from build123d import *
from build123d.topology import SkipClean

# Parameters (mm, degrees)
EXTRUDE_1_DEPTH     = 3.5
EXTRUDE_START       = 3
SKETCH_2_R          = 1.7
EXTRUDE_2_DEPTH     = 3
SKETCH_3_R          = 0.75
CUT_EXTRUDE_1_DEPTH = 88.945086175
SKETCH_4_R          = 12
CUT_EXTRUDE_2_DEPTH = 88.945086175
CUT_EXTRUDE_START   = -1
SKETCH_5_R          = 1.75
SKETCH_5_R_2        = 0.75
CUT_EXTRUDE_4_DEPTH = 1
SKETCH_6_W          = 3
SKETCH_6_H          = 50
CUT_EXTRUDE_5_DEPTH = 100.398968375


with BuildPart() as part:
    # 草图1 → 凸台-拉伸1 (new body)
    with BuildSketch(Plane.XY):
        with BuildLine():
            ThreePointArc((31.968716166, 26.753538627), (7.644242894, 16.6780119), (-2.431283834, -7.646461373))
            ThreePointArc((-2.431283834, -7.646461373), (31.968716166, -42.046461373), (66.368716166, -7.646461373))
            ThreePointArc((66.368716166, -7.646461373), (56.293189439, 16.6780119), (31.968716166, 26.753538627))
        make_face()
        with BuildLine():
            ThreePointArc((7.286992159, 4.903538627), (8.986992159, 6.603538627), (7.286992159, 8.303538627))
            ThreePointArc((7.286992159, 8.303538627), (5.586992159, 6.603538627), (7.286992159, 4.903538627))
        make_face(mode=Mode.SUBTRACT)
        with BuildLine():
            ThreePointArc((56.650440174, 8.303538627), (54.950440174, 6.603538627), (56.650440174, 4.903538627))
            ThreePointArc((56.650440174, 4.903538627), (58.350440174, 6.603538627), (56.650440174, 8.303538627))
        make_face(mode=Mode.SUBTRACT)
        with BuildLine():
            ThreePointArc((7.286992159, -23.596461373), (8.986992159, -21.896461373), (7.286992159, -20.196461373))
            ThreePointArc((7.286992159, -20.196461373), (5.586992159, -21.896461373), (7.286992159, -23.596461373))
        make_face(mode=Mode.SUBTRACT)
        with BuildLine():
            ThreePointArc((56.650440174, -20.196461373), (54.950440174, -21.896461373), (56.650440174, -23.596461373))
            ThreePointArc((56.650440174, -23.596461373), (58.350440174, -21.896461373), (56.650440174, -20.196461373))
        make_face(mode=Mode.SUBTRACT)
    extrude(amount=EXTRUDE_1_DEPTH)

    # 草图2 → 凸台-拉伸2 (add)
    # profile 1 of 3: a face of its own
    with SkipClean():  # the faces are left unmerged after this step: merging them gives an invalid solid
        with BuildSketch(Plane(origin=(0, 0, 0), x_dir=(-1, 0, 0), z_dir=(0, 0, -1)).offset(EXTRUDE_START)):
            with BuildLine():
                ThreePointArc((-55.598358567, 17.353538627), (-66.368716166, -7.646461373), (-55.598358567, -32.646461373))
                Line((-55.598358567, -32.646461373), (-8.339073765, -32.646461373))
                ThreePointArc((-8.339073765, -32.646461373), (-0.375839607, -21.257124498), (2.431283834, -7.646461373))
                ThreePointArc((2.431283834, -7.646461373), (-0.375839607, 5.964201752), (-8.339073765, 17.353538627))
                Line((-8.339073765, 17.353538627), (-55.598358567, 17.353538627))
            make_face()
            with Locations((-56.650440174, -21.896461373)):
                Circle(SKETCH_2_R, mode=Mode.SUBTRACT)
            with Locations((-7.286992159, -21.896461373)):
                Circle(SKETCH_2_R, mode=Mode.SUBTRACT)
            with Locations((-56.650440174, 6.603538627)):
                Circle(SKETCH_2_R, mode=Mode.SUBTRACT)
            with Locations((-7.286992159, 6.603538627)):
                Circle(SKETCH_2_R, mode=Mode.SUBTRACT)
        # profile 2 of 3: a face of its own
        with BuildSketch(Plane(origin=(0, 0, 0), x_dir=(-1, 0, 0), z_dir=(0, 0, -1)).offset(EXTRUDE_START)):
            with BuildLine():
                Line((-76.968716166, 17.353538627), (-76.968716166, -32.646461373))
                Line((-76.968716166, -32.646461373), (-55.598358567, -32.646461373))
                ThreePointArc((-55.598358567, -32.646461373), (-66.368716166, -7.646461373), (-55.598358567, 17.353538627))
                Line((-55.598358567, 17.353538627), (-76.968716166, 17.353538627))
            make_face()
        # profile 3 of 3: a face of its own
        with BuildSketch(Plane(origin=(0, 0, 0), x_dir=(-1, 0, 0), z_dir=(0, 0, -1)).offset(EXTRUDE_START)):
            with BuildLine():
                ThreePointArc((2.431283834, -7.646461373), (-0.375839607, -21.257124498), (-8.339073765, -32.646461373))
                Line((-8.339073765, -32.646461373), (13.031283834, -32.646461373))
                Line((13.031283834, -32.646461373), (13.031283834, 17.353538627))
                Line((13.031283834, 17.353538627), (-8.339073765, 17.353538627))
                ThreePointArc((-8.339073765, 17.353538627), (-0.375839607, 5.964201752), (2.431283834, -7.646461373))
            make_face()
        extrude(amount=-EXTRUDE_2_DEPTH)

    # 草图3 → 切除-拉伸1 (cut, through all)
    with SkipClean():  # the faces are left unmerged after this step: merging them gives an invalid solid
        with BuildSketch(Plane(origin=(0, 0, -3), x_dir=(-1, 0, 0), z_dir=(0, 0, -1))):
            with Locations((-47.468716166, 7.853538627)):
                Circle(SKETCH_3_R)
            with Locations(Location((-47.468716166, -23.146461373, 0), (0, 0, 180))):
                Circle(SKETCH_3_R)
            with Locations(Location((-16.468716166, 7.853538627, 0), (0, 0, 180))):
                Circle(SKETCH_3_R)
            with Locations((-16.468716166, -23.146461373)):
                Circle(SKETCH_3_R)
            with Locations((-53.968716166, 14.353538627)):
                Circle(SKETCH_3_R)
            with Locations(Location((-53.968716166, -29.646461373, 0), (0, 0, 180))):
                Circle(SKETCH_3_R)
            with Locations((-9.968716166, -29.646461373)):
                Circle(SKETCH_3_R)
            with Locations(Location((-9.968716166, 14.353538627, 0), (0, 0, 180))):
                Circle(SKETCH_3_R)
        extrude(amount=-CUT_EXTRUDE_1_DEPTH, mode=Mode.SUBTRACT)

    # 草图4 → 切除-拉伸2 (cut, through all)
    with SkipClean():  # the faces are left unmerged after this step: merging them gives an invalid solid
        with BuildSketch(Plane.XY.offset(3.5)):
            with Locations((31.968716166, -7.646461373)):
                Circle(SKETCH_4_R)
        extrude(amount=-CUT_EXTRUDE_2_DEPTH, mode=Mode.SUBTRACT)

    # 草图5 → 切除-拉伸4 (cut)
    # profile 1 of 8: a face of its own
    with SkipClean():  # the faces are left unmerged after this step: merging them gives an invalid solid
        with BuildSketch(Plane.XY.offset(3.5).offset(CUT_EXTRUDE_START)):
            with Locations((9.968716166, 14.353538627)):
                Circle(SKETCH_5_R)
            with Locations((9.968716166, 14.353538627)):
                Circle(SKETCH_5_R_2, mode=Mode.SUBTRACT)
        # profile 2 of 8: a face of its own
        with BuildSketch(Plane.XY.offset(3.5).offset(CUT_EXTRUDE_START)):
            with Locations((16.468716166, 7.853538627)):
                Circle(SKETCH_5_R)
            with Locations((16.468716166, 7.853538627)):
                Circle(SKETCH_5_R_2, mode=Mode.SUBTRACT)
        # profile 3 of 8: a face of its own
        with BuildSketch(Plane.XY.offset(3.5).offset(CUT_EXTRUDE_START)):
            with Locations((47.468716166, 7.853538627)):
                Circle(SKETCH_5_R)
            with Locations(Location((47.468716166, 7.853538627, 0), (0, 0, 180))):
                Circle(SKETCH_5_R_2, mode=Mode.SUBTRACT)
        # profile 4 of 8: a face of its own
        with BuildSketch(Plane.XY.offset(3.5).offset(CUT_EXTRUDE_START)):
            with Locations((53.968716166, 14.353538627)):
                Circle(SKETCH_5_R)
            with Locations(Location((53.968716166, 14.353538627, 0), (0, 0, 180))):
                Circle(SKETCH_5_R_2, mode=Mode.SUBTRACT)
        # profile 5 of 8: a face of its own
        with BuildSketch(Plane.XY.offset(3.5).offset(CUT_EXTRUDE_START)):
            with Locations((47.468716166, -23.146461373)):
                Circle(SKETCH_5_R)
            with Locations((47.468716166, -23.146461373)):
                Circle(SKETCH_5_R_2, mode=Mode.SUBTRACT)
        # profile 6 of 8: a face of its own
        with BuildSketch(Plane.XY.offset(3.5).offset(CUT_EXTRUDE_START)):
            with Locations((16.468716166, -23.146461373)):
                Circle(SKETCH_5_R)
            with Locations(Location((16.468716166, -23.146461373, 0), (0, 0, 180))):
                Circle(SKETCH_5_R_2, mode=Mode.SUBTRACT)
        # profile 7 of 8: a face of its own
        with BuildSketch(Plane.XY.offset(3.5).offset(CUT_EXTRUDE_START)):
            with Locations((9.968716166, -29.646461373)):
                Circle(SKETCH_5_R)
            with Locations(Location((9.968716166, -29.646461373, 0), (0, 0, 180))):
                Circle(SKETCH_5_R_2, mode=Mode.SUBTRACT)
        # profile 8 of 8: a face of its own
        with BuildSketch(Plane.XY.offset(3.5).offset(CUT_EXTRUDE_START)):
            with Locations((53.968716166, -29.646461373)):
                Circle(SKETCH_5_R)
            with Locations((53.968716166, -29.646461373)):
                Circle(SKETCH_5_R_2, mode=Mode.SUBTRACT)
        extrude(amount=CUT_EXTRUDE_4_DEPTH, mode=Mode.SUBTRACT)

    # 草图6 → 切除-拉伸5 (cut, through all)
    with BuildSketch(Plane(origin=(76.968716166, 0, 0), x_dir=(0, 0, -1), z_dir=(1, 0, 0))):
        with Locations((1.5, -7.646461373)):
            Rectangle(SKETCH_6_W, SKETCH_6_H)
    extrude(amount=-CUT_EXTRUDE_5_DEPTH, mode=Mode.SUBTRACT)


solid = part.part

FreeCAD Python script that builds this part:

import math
import FreeCAD as App
import Part
import Sketcher

V = App.Vector
Q = App.Units.Quantity


def add_polygon(sketch, points):
    """Adds a closed chain of lines whose ends are joined by coincident constraints."""
    first, n = sketch.GeometryCount, len(points)
    for a, b in zip(points, points[1:] + points[:1]):
        sketch.addGeometry(Part.LineSegment(App.Vector(*a, 0), App.Vector(*b, 0)), False)
    for i in range(n):
        sketch.addConstraint(Sketcher.Constraint("Coincident", first + i, 2, first + (i + 1) % n, 1))

doc = App.newDocument("Part")
body = doc.addObject("PartDesign::Body", "Body")

# Sketch on XY plane
sketch1 = body.newObject("Sketcher::SketchObject", "Sketch")
sketch1.AttachmentSupport = (doc.getObject("XY_Plane"), [""])
sketch1.MapMode = "FlatFace"
sketch1.addGeometry([
    Part.ArcOfCircle(Part.Circle(V(32, -7.6, 0), V(0, 0, 1), 34.4), math.radians(90), math.radians(180)),  # 0
    Part.ArcOfCircle(Part.Circle(V(32, -7.6, 0), V(0, 0, 1), 34.4), math.radians(180), math.radians(360)),  # 1
    Part.ArcOfCircle(Part.Circle(V(32, -7.6, 0), V(0, 0, 1), 34.4), math.radians(0), math.radians(90)),  # 2
    Part.Circle(V(7.3, -21.9, 0), V(0, 0, 1), 1.7),  # 3
    Part.Circle(V(56.7, -21.9, 0), V(0, 0, 1), 1.7),  # 4
    Part.Circle(V(7.3, 6.6, 0), V(0, 0, 1), 1.7),  # 5
    Part.Circle(V(56.7, 6.6, 0), V(0, 0, 1), 1.7),  # 6
], False)
sketch1.addConstraint([
    Sketcher.Constraint("Tangent", 0, 2, 1, 1),
    Sketcher.Constraint("Tangent", 1, 2, 2, 1),
    Sketcher.Constraint("Tangent", 2, 2, 0, 1),
    Sketcher.Constraint("Equal", 3, 4),
    Sketcher.Constraint("Equal", 4, 5),
    Sketcher.Constraint("Equal", 5, 6),
    Sketcher.Constraint("Horizontal", 3, 3, 4, 3),
    Sketcher.Constraint("Horizontal", 5, 3, 6, 3),
    Sketcher.Constraint("Horizontal", 2, 3, 0, 2),
    Sketcher.Constraint("Horizontal", 0, 2, 1, 2),
    Sketcher.Constraint("Vertical", 3, 3, 5, 3),
    Sketcher.Constraint("Vertical", 4, 3, 6, 3),
    Sketcher.Constraint("Vertical", 1, 3, 2, 2),
    Sketcher.Constraint("Diameter", 3, Q("3.4 mm")),
    Sketcher.Constraint("Radius", 0, Q("34.4 mm")),
    Sketcher.Constraint("DistanceY", 3, 3, 5, 3, Q("28.5 mm")),
    Sketcher.Constraint("DistanceY", 3, 3, 1, 3, Q("14.25 mm")),
    Sketcher.Constraint("DistanceY", 0, 3, -1, 1, Q("7.646461 mm")),
    Sketcher.Constraint("DistanceX", -1, 1, 4, 3, Q("56.65044 mm")),
    Sketcher.Constraint("DistanceX", 3, 3, 4, 3, Q("49.363448 mm")),
    Sketcher.Constraint("DistanceX", -1, 1, 0, 3, Q("31.968716 mm")),
])
pad1 = body.newObject("PartDesign::Pad", "Pad")
pad1.Profile = sketch1
pad1.Length = 3.5

# Sketch on XY plane
sketch2 = body.newObject("Sketcher::SketchObject", "Sketch001")
sketch2.AttachmentSupport = (doc.getObject("XY_Plane"), [""])
sketch2.MapMode = "FlatFace"
sketch2.AttachmentOffset = App.Placement(V(0, 0, -3), App.Rotation())
add_polygon(sketch2, [(77, 17.4), (77, -32.6), (-13, -32.6), (-13, 17.4)])  # lines 0-3
sketch2.addGeometry(Part.Circle(V(56.7, -21.9, 0), V(0, 0, 1), 1.7), False)  # 4
sketch2.addGeometry(Part.Circle(V(7.3, -21.9, 0), V(0, 0, 1), 1.7), False)  # 5
sketch2.addGeometry(Part.Circle(V(56.7, 6.6, 0), V(0, 0, 1), 1.7), False)  # 6
sketch2.addGeometry(Part.Circle(V(7.3, 6.6, 0), V(0, 0, 1), 1.7), False)  # 7
sketch2.addConstraint([
    Sketcher.Constraint("Vertical", 0),
    Sketcher.Constraint("Horizontal", 1),
    Sketcher.Constraint("Vertical", 2),
    Sketcher.Constraint("Horizontal", 3),
    Sketcher.Constraint("Equal", 4, 5),
    Sketcher.Constraint("Equal", 5, 6),
    Sketcher.Constraint("Equal", 6, 7),
    Sketcher.Constraint("Horizontal", 4, 3, 5, 3),
    Sketcher.Constraint("Horizontal", 6, 3, 7, 3),
    Sketcher.Constraint("Vertical", 4, 3, 6, 3),
    Sketcher.Constraint("Vertical", 5, 3, 7, 3),
    Sketcher.Constraint("Diameter", 4, Q("3.4 mm")),
    Sketcher.Constraint("DistanceX", 1, 2, 1, 1, Q("90 mm")),
    Sketcher.Constraint("DistanceY", 0, 2, 0, 1, Q("50 mm")),
    Sketcher.Constraint("DistanceY", 4, 3, 6, 3, Q("28.5 mm")),
    Sketcher.Constraint("DistanceY", 0, 2, 4, 3, Q("10.75 mm")),
    Sketcher.Constraint("DistanceX", -1, 1, 4, 3, Q("56.65044 mm")),
    Sketcher.Constraint("DistanceY", 4, 3, -1, 1, Q("21.896461 mm")),
    Sketcher.Constraint("DistanceX", 5, 3, 4, 3, Q("49.363448 mm")),
    Sketcher.Constraint("DistanceX", -1, 1, 0, 2, Q("76.968716 mm")),
])
pad2 = body.newObject("PartDesign::Pad", "Pad001")
pad2.Profile = sketch2
pad2.Length = 3

# Sketch on XY plane
sketch3 = body.newObject("Sketcher::SketchObject", "Sketch002")
sketch3.AttachmentSupport = (doc.getObject("XY_Plane"), [""])
sketch3.MapMode = "FlatFace"
sketch3.AttachmentOffset = App.Placement(V(0, 0, -3), App.Rotation())
sketch3.addGeometry([
    Part.Circle(V(47.5, 7.9, 0), V(0, 0, 1), 0.8),  # 0
    Part.Circle(V(47.5, -23.1, 0), V(0, 0, 1), 0.8),  # 1
    Part.Circle(V(16.5, 7.9, 0), V(0, 0, 1), 0.8),  # 2
    Part.Circle(V(16.5, -23.1, 0), V(0, 0, 1), 0.8),  # 3
    Part.Circle(V(54, 14.4, 0), V(0, 0, 1), 0.8),  # 4
    Part.Circle(V(54, -29.6, 0), V(0, 0, 1), 0.8),  # 5
    Part.Circle(V(10, -29.6, 0), V(0, 0, 1), 0.8),  # 6
    Part.Circle(V(10, 14.4, 0), V(0, 0, 1), 0.8),  # 7
], False)
sketch3.addConstraint([
    Sketcher.Constraint("Equal", 0, 1),
    Sketcher.Constraint("Equal", 1, 2),
    Sketcher.Constraint("Equal", 2, 3),
    Sketcher.Constraint("Equal", 3, 4),
    Sketcher.Constraint("Equal", 4, 5),
    Sketcher.Constraint("Equal", 5, 6),
    Sketcher.Constraint("Equal", 6, 7),
    Sketcher.Constraint("Horizontal", 0, 3, 2, 3),
    Sketcher.Constraint("Horizontal", 1, 3, 3, 3),
    Sketcher.Constraint("Horizontal", 5, 3, 6, 3),
    Sketcher.Constraint("Horizontal", 4, 3, 7, 3),
    Sketcher.Constraint("Vertical", 0, 3, 1, 3),
    Sketcher.Constraint("Vertical", 2, 3, 3, 3),
    Sketcher.Constraint("Vertical", 4, 3, 5, 3),
    Sketcher.Constraint("Vertical", 6, 3, 7, 3),
    Sketcher.Constraint("Diameter", 0, Q("1.5 mm")),
    Sketcher.Constraint("DistanceY", 1, 3, 0, 3, Q("31 mm")),
    Sketcher.Constraint("DistanceX", 2, 3, 0, 3, Q("31 mm")),
    Sketcher.Constraint("DistanceY", 5, 3, 4, 3, Q("44 mm")),
    Sketcher.Constraint("DistanceX", 6, 3, 5, 3, Q("44 mm")),
    Sketcher.Constraint("DistanceX", 0, 3, 4, 3, Q("6.5 mm")),
    Sketcher.Constraint("DistanceY", 0, 3, 4, 3, Q("6.5 mm")),
    Sketcher.Constraint("DistanceY", -1, 1, 0, 3, Q("7.853539 mm")),
    Sketcher.Constraint("DistanceX", -1, 1, 0, 3, Q("47.468716 mm")),
])
pocket1 = body.newObject("PartDesign::Pocket", "Pocket")
pocket1.Profile = sketch3
pocket1.Type = "ThroughAll"
pocket1.Reversed = True

# Sketch on XY plane
sketch4 = body.newObject("Sketcher::SketchObject", "Sketch003")
sketch4.AttachmentSupport = (doc.getObject("XY_Plane"), [""])
sketch4.MapMode = "FlatFace"
sketch4.AttachmentOffset = App.Placement(V(0, 0, 3.5), App.Rotation())
sketch4.addGeometry(Part.Circle(V(32, -8, 0), V(0, 0, 1), 12), False)
sketch4.addConstraint([
    Sketcher.Constraint("Diameter", 0, Q("24 mm")),
    Sketcher.Constraint("DistanceY", 0, 3, -1, 1, Q("7.646461 mm")),
    Sketcher.Constraint("DistanceX", -1, 1, 0, 3, Q("31.968716 mm")),
])
pocket2 = body.newObject("PartDesign::Pocket", "Pocket001")
pocket2.Profile = sketch4
pocket2.Type = "ThroughAll"

# Sketch on XY plane
sketch5 = body.newObject("Sketcher::SketchObject", "Sketch004")
sketch5.AttachmentSupport = (doc.getObject("XY_Plane"), [""])
sketch5.MapMode = "FlatFace"
sketch5.AttachmentOffset = App.Placement(V(0, 0, 2.5), App.Rotation())
sketch5.addGeometry([
    Part.Circle(V(10, 14.4, 0), V(0, 0, 1), 1.8),  # 0
    Part.Circle(V(10, 14.4, 0), V(0, 0, 1), 0.8),  # 1
    Part.Circle(V(16.5, 7.9, 0), V(0, 0, 1), 1.8),  # 2
    Part.Circle(V(16.5, 7.9, 0), V(0, 0, 1), 0.8),  # 3
    Part.Circle(V(47.5, 7.9, 0), V(0, 0, 1), 1.8),  # 4
    Part.Circle(V(47.5, 7.9, 0), V(0, 0, 1), 0.8),  # 5
    Part.Circle(V(54, 14.4, 0), V(0, 0, 1), 1.8),  # 6
    Part.Circle(V(54, 14.4, 0), V(0, 0, 1), 0.8),  # 7
    Part.Circle(V(47.5, -23.1, 0), V(0, 0, 1), 1.8),  # 8
    Part.Circle(V(47.5, -23.1, 0), V(0, 0, 1), 0.8),  # 9
    Part.Circle(V(16.5, -23.1, 0), V(0, 0, 1), 1.8),  # 10
    Part.Circle(V(16.5, -23.1, 0), V(0, 0, 1), 0.8),  # 11
    Part.Circle(V(10, -29.6, 0), V(0, 0, 1), 1.8),  # 12
    Part.Circle(V(10, -29.6, 0), V(0, 0, 1), 0.8),  # 13
    Part.Circle(V(54, -29.6, 0), V(0, 0, 1), 1.8),  # 14
    Part.Circle(V(54, -29.6, 0), V(0, 0, 1), 0.8),  # 15
], False)
sketch5.addConstraint([
    Sketcher.Constraint("Coincident", 1, 3, 0, 3),
    Sketcher.Constraint("Coincident", 3, 3, 2, 3),
    Sketcher.Constraint("Coincident", 5, 3, 4, 3),
    Sketcher.Constraint("Coincident", 7, 3, 6, 3),
    Sketcher.Constraint("Coincident", 9, 3, 8, 3),
    Sketcher.Constraint("Coincident", 11, 3, 10, 3),
    Sketcher.Constraint("Coincident", 13, 3, 12, 3),
    Sketcher.Constraint("Coincident", 15, 3, 14, 3),
    Sketcher.Constraint("Equal", 0, 2),
    Sketcher.Constraint("Equal", 1, 3),
    Sketcher.Constraint("Equal", 2, 4),
    Sketcher.Constraint("Equal", 3, 5),
    Sketcher.Constraint("Equal", 4, 6),
    Sketcher.Constraint("Equal", 5, 7),
    Sketcher.Constraint("Equal", 6, 8),
    Sketcher.Constraint("Equal", 7, 9),
    Sketcher.Constraint("Equal", 8, 10),
    Sketcher.Constraint("Equal", 9, 11),
    Sketcher.Constraint("Equal", 10, 12),
    Sketcher.Constraint("Equal", 11, 13),
    Sketcher.Constraint("Equal", 12, 14),
    Sketcher.Constraint("Equal", 13, 15),
    Sketcher.Constraint("Horizontal", 3, 3, 4, 3),
    Sketcher.Constraint("Horizontal", 1, 3, 6, 3),
    Sketcher.Constraint("Horizontal", 9, 3, 10, 3),
    Sketcher.Constraint("Horizontal", 13, 3, 14, 3),
    Sketcher.Constraint("Vertical", 5, 3, 8, 3),
    Sketcher.Constraint("Vertical", 3, 3, 10, 3),
    Sketcher.Constraint("Vertical", 1, 3, 12, 3),
    Sketcher.Constraint("Vertical", 7, 3, 14, 3),
    Sketcher.Constraint("Diameter", 0, Q("3.5 mm")),
    Sketcher.Constraint("Diameter", 1, Q("1.5 mm")),
    Sketcher.Constraint("DistanceX", 2, 3, 4, 3, Q("31 mm")),
    Sketcher.Constraint("DistanceX", 0, 3, 6, 3, Q("44 mm")),
    Sketcher.Constraint("DistanceY", 8, 3, 4, 3, Q("31 mm")),
    Sketcher.Constraint("DistanceX", 0, 3, 2, 3, Q("6.5 mm")),
    Sketcher.Constraint("DistanceY", 2, 3, 0, 3, Q("6.5 mm")),
    Sketcher.Constraint("DistanceY", 12, 3, 10, 3, Q("6.5 mm")),
    Sketcher.Constraint("DistanceY", -1, 1, 0, 3, Q("14.353539 mm")),
    Sketcher.Constraint("DistanceX", -1, 1, 0, 3, Q("9.968716 mm")),
])
pocket3 = body.newObject("PartDesign::Pocket", "Pocket002")
pocket3.Profile = sketch5
pocket3.Length = 1
pocket3.Reversed = True

# Sketch on YZ plane
sketch6 = body.newObject("Sketcher::SketchObject", "Sketch005")
sketch6.AttachmentSupport = (doc.getObject("YZ_Plane"), [""])
sketch6.MapMode = "FlatFace"
sketch6.AttachmentOffset = App.Placement(V(0, 0, 76.968716), App.Rotation())
add_polygon(sketch6, [(17.4, 0), (-32.6, 0), (-32.6, -3), (17.4, -3)])  # lines 0-3
sketch6.addConstraint([
    Sketcher.Constraint("Horizontal", 0),
    Sketcher.Constraint("Vertical", 1),
    Sketcher.Constraint("Horizontal", 2),
    Sketcher.Constraint("Vertical", 3),
    Sketcher.Constraint("PointOnObject", 0, 2, -1),
    Sketcher.Constraint("DistanceX", 0, 2, 0, 1, Q("50 mm")),
    Sketcher.Constraint("DistanceY", 1, 2, 1, 1, Q("3 mm")),
    Sketcher.Constraint("DistanceX", 0, 2, -1, 1, Q("32.646461 mm")),
])
pocket4 = body.newObject("PartDesign::Pocket", "Pocket003")
pocket4.Profile = sketch6
pocket4.Type = "ThroughAll"

doc.recompute()
